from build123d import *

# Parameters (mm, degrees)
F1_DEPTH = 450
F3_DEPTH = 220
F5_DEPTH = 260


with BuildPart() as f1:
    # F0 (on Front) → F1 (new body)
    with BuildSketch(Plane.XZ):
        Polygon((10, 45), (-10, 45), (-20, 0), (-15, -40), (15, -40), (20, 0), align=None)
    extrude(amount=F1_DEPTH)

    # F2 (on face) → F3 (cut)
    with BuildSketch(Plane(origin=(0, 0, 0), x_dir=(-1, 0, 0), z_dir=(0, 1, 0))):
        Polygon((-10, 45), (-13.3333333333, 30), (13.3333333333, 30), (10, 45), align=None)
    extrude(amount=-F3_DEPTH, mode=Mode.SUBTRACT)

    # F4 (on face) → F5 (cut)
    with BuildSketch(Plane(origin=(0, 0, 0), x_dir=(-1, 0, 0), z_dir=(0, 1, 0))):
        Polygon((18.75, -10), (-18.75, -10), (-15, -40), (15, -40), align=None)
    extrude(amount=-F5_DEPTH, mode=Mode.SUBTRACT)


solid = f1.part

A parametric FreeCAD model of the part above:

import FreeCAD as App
import Part
import Sketcher


def add_polygon(sketch, points):
    """Adds a closed chain of lines whose ends are joined by coincident constraints."""
    first, n = sketch.GeometryCount, len(points)
    for a, b in zip(points, points[1:] + points[:1]):
        sketch.addGeometry(Part.LineSegment(App.Vector(*a, 0), App.Vector(*b, 0)), False)
    for i in range(n):
        sketch.addConstraint(Sketcher.Constraint("Coincident", first + i, 2, first + (i + 1) % n, 1))

doc = App.newDocument("Part")
body = doc.addObject("PartDesign::Body", "Body")

# Sketch on XZ plane
sketch1 = body.newObject("Sketcher::SketchObject", "Sketch")
sketch1.AttachmentSupport = (doc.getObject("XZ_Plane"), [""])
sketch1.MapMode = "FlatFace"
add_polygon(sketch1, [(10, 45), (-10, 45), (-20, 0), (-15, -40), (15, -40), (20, 0)])  # lines 0-5
sketch1.addConstraint(Sketcher.Constraint("Horizontal", 0))
sketch1.addConstraint(Sketcher.Constraint("Horizontal", 3))
sketch1.addConstraint(Sketcher.Constraint("Symmetric", 1, 2, 4, 2, -1, 1))
sketch1.addConstraint(Sketcher.Constraint("PointOnObject", 1, 2, -1))
sketch1.addConstraint(Sketcher.Constraint("Equal", 2, 4))
sketch1.addConstraint(Sketcher.Constraint("Equal", 1, 5))
sketch1.addConstraint(Sketcher.Constraint("DistanceX", 0, 2, 0, 1, 20.0))
sketch1.addConstraint(Sketcher.Constraint("DistanceX", 3, 1, 3, 2, 30.0))
sketch1.addConstraint(Sketcher.Constraint("DistanceY", -1, 1, 0, 2, 45.0))
sketch1.addConstraint(Sketcher.Constraint("DistanceX", 1, 2, -1, 1, 20.0))
sketch1.addConstraint(Sketcher.Constraint("DistanceY", 2, 2, -1, 1, 40.0))
pad1 = body.newObject("PartDesign::Pad", "Pad")
pad1.Profile = sketch1
pad1.Length = 450

# Sketch on XZ plane
sketch2 = body.newObject("Sketcher::SketchObject", "Sketch001")
sketch2.AttachmentSupport = (doc.getObject("XZ_Plane"), [""])
sketch2.MapMode = "FlatFace"
add_polygon(sketch2, [(10, 45), (13, 30), (-13, 30), (-10, 45)])  # lines 0-3
sketch2.addConstraint(Sketcher.Constraint("Horizontal", 1))
sketch2.addConstraint(Sketcher.Constraint("Horizontal", 3))
sketch2.addConstraint(Sketcher.Constraint("Equal", 0, 2))
sketch2.addConstraint(Sketcher.Constraint("DistanceX", 3, 1, 3, 2, 20.0))
sketch2.addConstraint(Sketcher.Constraint("DistanceY", -1, 1, 0, 2, 30.0))
sketch2.addConstraint(Sketcher.Constraint("DistanceX", 2, 2, -1, 1, 10.0))
sketch2.addConstraint(Sketcher.Constraint("DistanceY", -1, 1, 2, 2, 45.0))
sketch2.addConstraint(Sketcher.Constraint("DistanceX", 1, 2, 1, 1, 26.666667))
pocket1 = body.newObject("PartDesign::Pocket", "Pocket")
pocket1.Profile = sketch2
pocket1.Length = 220
pocket1.Reversed = True

# Sketch on XZ plane
sketch3 = body.newObject("Sketcher::SketchObject", "Sketch002")
sketch3.AttachmentSupport = (doc.getObject("XZ_Plane"), [""])
sketch3.MapMode = "FlatFace"
add_polygon(sketch3, [(-19, -10), (19, -10), (15, -40), (-15, -40)])  # lines 0-3
sketch3.addConstraint(Sketcher.Constraint("Horizontal", 0))
sketch3.addConstraint(Sketcher.Constraint("Horizontal", 2))
sketch3.addConstraint(Sketcher.Constraint("Equal", 1, 3))
sketch3.addConstraint(Sketcher.Constraint("DistanceX", 2, 2, 2, 1, 30.0))
sketch3.addConstraint(Sketcher.Constraint("DistanceX", 0, 1, 0, 2, 37.5))
sketch3.addConstraint(Sketcher.Constraint("DistanceY", 0, 2, -1, 1, 10.0))
sketch3.addConstraint(Sketcher.Constraint("DistanceX", -1, 1, 1, 2, 15.0))
sketch3.addConstraint(Sketcher.Constraint("DistanceY", 1, 2, -1, 1, 40.0))
pocket2 = body.newObject("PartDesign::Pocket", "Pocket001")
pocket2.Profile = sketch3
pocket2.Length = 260
pocket2.Reversed = True

doc.recompute()
